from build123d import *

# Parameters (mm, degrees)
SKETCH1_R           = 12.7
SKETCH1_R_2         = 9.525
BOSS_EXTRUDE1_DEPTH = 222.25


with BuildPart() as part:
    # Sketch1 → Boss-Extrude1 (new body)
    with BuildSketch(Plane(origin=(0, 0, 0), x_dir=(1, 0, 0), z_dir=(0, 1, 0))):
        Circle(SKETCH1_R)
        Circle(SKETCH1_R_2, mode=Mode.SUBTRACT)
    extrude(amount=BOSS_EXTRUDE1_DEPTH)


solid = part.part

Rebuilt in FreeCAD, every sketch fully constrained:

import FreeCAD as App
import Part
import Sketcher
from FreeCAD import Vector
Q = App.Units.Quantity

doc = App.newDocument("Part")
params = doc.addObject("Spreadsheet::Sheet", "Params")
for row, (alias, value) in enumerate([
    ("sketch1_diameter", "1 in"),
    ("sketch1_diameter2", "0.75 in"),
    ("pad1_length", "8.75 in"),
], start=1):
    params.set(f"A{row}", alias)
    params.set(f"B{row}", "=" + value)
    params.setAlias(f"B{row}", alias)

body = doc.addObject("PartDesign::Body", "Body")

# Sketch on XZ plane
sketch1 = doc.addObject("Sketcher::SketchObject", "Sketch")
body.addObject(sketch1)
sketch1.AttachmentSupport = (doc.XZ_Plane, [""])
sketch1.MapMode = "FlatFace"
sketch1.addGeometry(Part.Circle(Vector(0, 0, 0), Vector(0, 0, 1), 13), False)
sketch1.addGeometry(Part.Circle(Vector(0, 0, 0), Vector(0, 0, 1), 10), False)
sketch1.addConstraint(Sketcher.Constraint("Coincident", 0, 3, -1, 1))
sketch1.addConstraint(Sketcher.Constraint("Coincident", 1, 3, -1, 1))
sketch1.addConstraint(Sketcher.Constraint("Diameter", 0, Q("1 in")))
sketch1.addConstraint(Sketcher.Constraint("Diameter", 1, Q("0.75 in")))
sketch1.setExpression("Constraints[2]", "Params.sketch1_diameter")
sketch1.setExpression("Constraints[3]", "Params.sketch1_diameter2")
pad1 = doc.addObject("PartDesign::Pad", "Pad")
body.addObject(pad1)
pad1.Profile = sketch1
pad1.setExpression("Length", "Params.pad1_length")
pad1.Reversed = True

doc.recompute()
